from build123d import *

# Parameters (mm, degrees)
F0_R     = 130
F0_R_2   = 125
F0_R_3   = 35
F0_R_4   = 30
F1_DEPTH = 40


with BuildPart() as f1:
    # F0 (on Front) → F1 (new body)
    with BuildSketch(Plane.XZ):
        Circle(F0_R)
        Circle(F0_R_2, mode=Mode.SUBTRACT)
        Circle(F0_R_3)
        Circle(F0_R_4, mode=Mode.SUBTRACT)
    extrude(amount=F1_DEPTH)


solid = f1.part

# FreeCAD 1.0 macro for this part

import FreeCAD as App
import Part
import Sketcher
from FreeCAD import Vector
Q = App.Units.Quantity

doc = App.newDocument("Part")
params = doc.addObject("Spreadsheet::Sheet", "Params")
for row, (alias, value) in enumerate([
    ("sketch1_diameter", "260 mm"),
    ("sketch1_diameter2", "250 mm"),
    ("sketch1_diameter3", "70 mm"),
    ("sketch1_diameter4", "60 mm"),
    ("pad1_length", "40 mm"),
], start=1):
    params.set(f"A{row}", alias)
    params.set(f"B{row}", "=" + value)
    params.setAlias(f"B{row}", alias)

body = doc.addObject("PartDesign::Body", "Body")
body.AllowCompound = True

sketch1 = doc.addObject("Sketcher::SketchObject", "Sketch")
body.addObject(sketch1)
sketch1.AttachmentSupport = (doc.XZ_Plane, [""])
sketch1.MapMode = "FlatFace"
sketch1.addGeometry([
    Part.Circle(Vector(0, 0, 0), Vector(0, 0, 1), 130),
    Part.Circle(Vector(0, 0, 0), Vector(0, 0, 1), 125),
    Part.Circle(Vector(0, 0, 0), Vector(0, 0, 1), 35),
    Part.Circle(Vector(0, 0, 0), Vector(0, 0, 1), 30),
], False)
sketch1.addConstraint([
    Sketcher.Constraint("Coincident", 0, 3, -1, 1),
    Sketcher.Constraint("Coincident", 1, 3, -1, 1),
    Sketcher.Constraint("Coincident", 2, 3, -1, 1),
    Sketcher.Constraint("Coincident", 3, 3, -1, 1),
    Sketcher.Constraint("Diameter", 0, Q("260 mm")),
    Sketcher.Constraint("Diameter", 1, Q("250 mm")),
    Sketcher.Constraint("Diameter", 2, Q("70 mm")),
    Sketcher.Constraint("Diameter", 3, Q("60 mm")),
])
sketch1.setExpression("Constraints[4]", "Params.sketch1_diameter")
sketch1.setExpression("Constraints[5]", "Params.sketch1_diameter2")
sketch1.setExpression("Constraints[6]", "Params.sketch1_diameter3")
sketch1.setExpression("Constraints[7]", "Params.sketch1_diameter4")
pad1 = doc.addObject("PartDesign::Pad", "Pad")
body.addObject(pad1)
pad1.Profile = sketch1
pad1.setExpression("Length", "Params.pad1_length")

doc.recompute()
